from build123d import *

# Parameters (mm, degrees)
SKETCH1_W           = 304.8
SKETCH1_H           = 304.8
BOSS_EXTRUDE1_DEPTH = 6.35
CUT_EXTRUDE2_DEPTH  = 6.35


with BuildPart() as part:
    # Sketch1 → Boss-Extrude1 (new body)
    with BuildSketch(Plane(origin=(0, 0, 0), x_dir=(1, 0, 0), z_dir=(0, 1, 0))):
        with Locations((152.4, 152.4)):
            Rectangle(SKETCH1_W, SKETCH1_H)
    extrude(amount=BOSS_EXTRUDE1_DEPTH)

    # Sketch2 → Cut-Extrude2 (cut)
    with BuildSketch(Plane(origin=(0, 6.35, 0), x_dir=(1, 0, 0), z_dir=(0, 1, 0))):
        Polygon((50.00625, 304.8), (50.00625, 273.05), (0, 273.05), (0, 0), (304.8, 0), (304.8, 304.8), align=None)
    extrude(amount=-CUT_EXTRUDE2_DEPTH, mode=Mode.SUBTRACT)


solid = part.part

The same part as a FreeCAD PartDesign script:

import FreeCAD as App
import Part
import Sketcher
Q = App.Units.Quantity

doc = App.newDocument("Part")
body = doc.addObject("PartDesign::Body", "Body")

# Sketch on XZ plane
sketch1 = body.newObject("Sketcher::SketchObject", "Sketch")
sketch1.AttachmentSupport = (doc.getObject("XZ_Plane"), [""])
sketch1.MapMode = "FlatFace"
sketch1.addGeometry([
    Part.LineSegment(App.Vector(0, -305, 0), App.Vector(0, 0, 0)),
    Part.LineSegment(App.Vector(0, 0, 0), App.Vector(305, 0, 0)),
    Part.LineSegment(App.Vector(305, 0, 0), App.Vector(305, -305, 0)),
    Part.LineSegment(App.Vector(305, -305, 0), App.Vector(0, -305, 0)),
], False)
sketch1.addConstraint([
    Sketcher.Constraint("Coincident", 0, 2, 1, 1),
    Sketcher.Constraint("Coincident", 1, 2, 2, 1),
    Sketcher.Constraint("Coincident", 2, 2, 3, 1),
    Sketcher.Constraint("Coincident", 3, 2, 0, 1),
    Sketcher.Constraint("Vertical", 0),
    Sketcher.Constraint("Horizontal", 1),
    Sketcher.Constraint("Vertical", 2),
    Sketcher.Constraint("Horizontal", 3),
    Sketcher.Constraint("Coincident", 0, 2, -1, 1),
    Sketcher.Constraint("Equal", 3, 0),
    Sketcher.Constraint("DistanceX", 1, 1, 1, 2, Q("12 in")),
])
pad1 = body.newObject("PartDesign::Pad", "Pad")
pad1.Profile = sketch1
pad1.Length = Q("0.25 in")
pad1.Reversed = True

# Sketch on XZ plane
sketch2 = body.newObject("Sketcher::SketchObject", "Sketch001")
sketch2.AttachmentSupport = (doc.getObject("XZ_Plane"), [""])
sketch2.MapMode = "FlatFace"
sketch2.AttachmentOffset = App.Placement(App.Vector(0, 0, -0.25 * 25.4), App.Rotation())
sketch2.addGeometry([
    Part.LineSegment(App.Vector(50, -305, 0), App.Vector(50, -273, 0)),  # 0
    Part.LineSegment(App.Vector(50, -273, 0), App.Vector(0, -273, 0)),  # 1
    Part.LineSegment(App.Vector(0, -273, 0), App.Vector(0, 0, 0)),  # 2
    Part.LineSegment(App.Vector(0, 0, 0), App.Vector(305, 0, 0)),  # 3
    Part.LineSegment(App.Vector(305, 0, 0), App.Vector(305, -305, 0)),  # 4
    Part.LineSegment(App.Vector(305, -305, 0), App.Vector(50, -305, 0)),  # 5
], False)
sketch2.addConstraint([
    Sketcher.Constraint("Coincident", 0, 2, 1, 1),
    Sketcher.Constraint("Coincident", 1, 2, 2, 1),
    Sketcher.Constraint("Coincident", 2, 2, 3, 1),
    Sketcher.Constraint("Coincident", 3, 2, 4, 1),
    Sketcher.Constraint("Coincident", 4, 2, 5, 1),
    Sketcher.Constraint("Coincident", 5, 2, 0, 1),
    Sketcher.Constraint("Vertical", 0),
    Sketcher.Constraint("Horizontal", 1),
    Sketcher.Constraint("Vertical", 2),
    Sketcher.Constraint("Horizontal", 3),
    Sketcher.Constraint("Vertical", 4),
    Sketcher.Constraint("Horizontal", 5),
    Sketcher.Constraint("Coincident", 2, 2, -1, 1),
    Sketcher.Constraint("Equal", 3, 4),
    Sketcher.Constraint("DistanceX", 3, 1, 3, 2, Q("12 in")),
    Sketcher.Constraint("DistanceY", 0, 1, 0, 2, Q("1.25 in")),
    Sketcher.Constraint("DistanceX", 1, 2, 1, 1, Q("1.96875 in")),
])
pocket1 = body.newObject("PartDesign::Pocket", "Pocket")
pocket1.Profile = sketch2
pocket1.Length = Q("0.25 in")
pocket1.Reversed = True

doc.recompute()
